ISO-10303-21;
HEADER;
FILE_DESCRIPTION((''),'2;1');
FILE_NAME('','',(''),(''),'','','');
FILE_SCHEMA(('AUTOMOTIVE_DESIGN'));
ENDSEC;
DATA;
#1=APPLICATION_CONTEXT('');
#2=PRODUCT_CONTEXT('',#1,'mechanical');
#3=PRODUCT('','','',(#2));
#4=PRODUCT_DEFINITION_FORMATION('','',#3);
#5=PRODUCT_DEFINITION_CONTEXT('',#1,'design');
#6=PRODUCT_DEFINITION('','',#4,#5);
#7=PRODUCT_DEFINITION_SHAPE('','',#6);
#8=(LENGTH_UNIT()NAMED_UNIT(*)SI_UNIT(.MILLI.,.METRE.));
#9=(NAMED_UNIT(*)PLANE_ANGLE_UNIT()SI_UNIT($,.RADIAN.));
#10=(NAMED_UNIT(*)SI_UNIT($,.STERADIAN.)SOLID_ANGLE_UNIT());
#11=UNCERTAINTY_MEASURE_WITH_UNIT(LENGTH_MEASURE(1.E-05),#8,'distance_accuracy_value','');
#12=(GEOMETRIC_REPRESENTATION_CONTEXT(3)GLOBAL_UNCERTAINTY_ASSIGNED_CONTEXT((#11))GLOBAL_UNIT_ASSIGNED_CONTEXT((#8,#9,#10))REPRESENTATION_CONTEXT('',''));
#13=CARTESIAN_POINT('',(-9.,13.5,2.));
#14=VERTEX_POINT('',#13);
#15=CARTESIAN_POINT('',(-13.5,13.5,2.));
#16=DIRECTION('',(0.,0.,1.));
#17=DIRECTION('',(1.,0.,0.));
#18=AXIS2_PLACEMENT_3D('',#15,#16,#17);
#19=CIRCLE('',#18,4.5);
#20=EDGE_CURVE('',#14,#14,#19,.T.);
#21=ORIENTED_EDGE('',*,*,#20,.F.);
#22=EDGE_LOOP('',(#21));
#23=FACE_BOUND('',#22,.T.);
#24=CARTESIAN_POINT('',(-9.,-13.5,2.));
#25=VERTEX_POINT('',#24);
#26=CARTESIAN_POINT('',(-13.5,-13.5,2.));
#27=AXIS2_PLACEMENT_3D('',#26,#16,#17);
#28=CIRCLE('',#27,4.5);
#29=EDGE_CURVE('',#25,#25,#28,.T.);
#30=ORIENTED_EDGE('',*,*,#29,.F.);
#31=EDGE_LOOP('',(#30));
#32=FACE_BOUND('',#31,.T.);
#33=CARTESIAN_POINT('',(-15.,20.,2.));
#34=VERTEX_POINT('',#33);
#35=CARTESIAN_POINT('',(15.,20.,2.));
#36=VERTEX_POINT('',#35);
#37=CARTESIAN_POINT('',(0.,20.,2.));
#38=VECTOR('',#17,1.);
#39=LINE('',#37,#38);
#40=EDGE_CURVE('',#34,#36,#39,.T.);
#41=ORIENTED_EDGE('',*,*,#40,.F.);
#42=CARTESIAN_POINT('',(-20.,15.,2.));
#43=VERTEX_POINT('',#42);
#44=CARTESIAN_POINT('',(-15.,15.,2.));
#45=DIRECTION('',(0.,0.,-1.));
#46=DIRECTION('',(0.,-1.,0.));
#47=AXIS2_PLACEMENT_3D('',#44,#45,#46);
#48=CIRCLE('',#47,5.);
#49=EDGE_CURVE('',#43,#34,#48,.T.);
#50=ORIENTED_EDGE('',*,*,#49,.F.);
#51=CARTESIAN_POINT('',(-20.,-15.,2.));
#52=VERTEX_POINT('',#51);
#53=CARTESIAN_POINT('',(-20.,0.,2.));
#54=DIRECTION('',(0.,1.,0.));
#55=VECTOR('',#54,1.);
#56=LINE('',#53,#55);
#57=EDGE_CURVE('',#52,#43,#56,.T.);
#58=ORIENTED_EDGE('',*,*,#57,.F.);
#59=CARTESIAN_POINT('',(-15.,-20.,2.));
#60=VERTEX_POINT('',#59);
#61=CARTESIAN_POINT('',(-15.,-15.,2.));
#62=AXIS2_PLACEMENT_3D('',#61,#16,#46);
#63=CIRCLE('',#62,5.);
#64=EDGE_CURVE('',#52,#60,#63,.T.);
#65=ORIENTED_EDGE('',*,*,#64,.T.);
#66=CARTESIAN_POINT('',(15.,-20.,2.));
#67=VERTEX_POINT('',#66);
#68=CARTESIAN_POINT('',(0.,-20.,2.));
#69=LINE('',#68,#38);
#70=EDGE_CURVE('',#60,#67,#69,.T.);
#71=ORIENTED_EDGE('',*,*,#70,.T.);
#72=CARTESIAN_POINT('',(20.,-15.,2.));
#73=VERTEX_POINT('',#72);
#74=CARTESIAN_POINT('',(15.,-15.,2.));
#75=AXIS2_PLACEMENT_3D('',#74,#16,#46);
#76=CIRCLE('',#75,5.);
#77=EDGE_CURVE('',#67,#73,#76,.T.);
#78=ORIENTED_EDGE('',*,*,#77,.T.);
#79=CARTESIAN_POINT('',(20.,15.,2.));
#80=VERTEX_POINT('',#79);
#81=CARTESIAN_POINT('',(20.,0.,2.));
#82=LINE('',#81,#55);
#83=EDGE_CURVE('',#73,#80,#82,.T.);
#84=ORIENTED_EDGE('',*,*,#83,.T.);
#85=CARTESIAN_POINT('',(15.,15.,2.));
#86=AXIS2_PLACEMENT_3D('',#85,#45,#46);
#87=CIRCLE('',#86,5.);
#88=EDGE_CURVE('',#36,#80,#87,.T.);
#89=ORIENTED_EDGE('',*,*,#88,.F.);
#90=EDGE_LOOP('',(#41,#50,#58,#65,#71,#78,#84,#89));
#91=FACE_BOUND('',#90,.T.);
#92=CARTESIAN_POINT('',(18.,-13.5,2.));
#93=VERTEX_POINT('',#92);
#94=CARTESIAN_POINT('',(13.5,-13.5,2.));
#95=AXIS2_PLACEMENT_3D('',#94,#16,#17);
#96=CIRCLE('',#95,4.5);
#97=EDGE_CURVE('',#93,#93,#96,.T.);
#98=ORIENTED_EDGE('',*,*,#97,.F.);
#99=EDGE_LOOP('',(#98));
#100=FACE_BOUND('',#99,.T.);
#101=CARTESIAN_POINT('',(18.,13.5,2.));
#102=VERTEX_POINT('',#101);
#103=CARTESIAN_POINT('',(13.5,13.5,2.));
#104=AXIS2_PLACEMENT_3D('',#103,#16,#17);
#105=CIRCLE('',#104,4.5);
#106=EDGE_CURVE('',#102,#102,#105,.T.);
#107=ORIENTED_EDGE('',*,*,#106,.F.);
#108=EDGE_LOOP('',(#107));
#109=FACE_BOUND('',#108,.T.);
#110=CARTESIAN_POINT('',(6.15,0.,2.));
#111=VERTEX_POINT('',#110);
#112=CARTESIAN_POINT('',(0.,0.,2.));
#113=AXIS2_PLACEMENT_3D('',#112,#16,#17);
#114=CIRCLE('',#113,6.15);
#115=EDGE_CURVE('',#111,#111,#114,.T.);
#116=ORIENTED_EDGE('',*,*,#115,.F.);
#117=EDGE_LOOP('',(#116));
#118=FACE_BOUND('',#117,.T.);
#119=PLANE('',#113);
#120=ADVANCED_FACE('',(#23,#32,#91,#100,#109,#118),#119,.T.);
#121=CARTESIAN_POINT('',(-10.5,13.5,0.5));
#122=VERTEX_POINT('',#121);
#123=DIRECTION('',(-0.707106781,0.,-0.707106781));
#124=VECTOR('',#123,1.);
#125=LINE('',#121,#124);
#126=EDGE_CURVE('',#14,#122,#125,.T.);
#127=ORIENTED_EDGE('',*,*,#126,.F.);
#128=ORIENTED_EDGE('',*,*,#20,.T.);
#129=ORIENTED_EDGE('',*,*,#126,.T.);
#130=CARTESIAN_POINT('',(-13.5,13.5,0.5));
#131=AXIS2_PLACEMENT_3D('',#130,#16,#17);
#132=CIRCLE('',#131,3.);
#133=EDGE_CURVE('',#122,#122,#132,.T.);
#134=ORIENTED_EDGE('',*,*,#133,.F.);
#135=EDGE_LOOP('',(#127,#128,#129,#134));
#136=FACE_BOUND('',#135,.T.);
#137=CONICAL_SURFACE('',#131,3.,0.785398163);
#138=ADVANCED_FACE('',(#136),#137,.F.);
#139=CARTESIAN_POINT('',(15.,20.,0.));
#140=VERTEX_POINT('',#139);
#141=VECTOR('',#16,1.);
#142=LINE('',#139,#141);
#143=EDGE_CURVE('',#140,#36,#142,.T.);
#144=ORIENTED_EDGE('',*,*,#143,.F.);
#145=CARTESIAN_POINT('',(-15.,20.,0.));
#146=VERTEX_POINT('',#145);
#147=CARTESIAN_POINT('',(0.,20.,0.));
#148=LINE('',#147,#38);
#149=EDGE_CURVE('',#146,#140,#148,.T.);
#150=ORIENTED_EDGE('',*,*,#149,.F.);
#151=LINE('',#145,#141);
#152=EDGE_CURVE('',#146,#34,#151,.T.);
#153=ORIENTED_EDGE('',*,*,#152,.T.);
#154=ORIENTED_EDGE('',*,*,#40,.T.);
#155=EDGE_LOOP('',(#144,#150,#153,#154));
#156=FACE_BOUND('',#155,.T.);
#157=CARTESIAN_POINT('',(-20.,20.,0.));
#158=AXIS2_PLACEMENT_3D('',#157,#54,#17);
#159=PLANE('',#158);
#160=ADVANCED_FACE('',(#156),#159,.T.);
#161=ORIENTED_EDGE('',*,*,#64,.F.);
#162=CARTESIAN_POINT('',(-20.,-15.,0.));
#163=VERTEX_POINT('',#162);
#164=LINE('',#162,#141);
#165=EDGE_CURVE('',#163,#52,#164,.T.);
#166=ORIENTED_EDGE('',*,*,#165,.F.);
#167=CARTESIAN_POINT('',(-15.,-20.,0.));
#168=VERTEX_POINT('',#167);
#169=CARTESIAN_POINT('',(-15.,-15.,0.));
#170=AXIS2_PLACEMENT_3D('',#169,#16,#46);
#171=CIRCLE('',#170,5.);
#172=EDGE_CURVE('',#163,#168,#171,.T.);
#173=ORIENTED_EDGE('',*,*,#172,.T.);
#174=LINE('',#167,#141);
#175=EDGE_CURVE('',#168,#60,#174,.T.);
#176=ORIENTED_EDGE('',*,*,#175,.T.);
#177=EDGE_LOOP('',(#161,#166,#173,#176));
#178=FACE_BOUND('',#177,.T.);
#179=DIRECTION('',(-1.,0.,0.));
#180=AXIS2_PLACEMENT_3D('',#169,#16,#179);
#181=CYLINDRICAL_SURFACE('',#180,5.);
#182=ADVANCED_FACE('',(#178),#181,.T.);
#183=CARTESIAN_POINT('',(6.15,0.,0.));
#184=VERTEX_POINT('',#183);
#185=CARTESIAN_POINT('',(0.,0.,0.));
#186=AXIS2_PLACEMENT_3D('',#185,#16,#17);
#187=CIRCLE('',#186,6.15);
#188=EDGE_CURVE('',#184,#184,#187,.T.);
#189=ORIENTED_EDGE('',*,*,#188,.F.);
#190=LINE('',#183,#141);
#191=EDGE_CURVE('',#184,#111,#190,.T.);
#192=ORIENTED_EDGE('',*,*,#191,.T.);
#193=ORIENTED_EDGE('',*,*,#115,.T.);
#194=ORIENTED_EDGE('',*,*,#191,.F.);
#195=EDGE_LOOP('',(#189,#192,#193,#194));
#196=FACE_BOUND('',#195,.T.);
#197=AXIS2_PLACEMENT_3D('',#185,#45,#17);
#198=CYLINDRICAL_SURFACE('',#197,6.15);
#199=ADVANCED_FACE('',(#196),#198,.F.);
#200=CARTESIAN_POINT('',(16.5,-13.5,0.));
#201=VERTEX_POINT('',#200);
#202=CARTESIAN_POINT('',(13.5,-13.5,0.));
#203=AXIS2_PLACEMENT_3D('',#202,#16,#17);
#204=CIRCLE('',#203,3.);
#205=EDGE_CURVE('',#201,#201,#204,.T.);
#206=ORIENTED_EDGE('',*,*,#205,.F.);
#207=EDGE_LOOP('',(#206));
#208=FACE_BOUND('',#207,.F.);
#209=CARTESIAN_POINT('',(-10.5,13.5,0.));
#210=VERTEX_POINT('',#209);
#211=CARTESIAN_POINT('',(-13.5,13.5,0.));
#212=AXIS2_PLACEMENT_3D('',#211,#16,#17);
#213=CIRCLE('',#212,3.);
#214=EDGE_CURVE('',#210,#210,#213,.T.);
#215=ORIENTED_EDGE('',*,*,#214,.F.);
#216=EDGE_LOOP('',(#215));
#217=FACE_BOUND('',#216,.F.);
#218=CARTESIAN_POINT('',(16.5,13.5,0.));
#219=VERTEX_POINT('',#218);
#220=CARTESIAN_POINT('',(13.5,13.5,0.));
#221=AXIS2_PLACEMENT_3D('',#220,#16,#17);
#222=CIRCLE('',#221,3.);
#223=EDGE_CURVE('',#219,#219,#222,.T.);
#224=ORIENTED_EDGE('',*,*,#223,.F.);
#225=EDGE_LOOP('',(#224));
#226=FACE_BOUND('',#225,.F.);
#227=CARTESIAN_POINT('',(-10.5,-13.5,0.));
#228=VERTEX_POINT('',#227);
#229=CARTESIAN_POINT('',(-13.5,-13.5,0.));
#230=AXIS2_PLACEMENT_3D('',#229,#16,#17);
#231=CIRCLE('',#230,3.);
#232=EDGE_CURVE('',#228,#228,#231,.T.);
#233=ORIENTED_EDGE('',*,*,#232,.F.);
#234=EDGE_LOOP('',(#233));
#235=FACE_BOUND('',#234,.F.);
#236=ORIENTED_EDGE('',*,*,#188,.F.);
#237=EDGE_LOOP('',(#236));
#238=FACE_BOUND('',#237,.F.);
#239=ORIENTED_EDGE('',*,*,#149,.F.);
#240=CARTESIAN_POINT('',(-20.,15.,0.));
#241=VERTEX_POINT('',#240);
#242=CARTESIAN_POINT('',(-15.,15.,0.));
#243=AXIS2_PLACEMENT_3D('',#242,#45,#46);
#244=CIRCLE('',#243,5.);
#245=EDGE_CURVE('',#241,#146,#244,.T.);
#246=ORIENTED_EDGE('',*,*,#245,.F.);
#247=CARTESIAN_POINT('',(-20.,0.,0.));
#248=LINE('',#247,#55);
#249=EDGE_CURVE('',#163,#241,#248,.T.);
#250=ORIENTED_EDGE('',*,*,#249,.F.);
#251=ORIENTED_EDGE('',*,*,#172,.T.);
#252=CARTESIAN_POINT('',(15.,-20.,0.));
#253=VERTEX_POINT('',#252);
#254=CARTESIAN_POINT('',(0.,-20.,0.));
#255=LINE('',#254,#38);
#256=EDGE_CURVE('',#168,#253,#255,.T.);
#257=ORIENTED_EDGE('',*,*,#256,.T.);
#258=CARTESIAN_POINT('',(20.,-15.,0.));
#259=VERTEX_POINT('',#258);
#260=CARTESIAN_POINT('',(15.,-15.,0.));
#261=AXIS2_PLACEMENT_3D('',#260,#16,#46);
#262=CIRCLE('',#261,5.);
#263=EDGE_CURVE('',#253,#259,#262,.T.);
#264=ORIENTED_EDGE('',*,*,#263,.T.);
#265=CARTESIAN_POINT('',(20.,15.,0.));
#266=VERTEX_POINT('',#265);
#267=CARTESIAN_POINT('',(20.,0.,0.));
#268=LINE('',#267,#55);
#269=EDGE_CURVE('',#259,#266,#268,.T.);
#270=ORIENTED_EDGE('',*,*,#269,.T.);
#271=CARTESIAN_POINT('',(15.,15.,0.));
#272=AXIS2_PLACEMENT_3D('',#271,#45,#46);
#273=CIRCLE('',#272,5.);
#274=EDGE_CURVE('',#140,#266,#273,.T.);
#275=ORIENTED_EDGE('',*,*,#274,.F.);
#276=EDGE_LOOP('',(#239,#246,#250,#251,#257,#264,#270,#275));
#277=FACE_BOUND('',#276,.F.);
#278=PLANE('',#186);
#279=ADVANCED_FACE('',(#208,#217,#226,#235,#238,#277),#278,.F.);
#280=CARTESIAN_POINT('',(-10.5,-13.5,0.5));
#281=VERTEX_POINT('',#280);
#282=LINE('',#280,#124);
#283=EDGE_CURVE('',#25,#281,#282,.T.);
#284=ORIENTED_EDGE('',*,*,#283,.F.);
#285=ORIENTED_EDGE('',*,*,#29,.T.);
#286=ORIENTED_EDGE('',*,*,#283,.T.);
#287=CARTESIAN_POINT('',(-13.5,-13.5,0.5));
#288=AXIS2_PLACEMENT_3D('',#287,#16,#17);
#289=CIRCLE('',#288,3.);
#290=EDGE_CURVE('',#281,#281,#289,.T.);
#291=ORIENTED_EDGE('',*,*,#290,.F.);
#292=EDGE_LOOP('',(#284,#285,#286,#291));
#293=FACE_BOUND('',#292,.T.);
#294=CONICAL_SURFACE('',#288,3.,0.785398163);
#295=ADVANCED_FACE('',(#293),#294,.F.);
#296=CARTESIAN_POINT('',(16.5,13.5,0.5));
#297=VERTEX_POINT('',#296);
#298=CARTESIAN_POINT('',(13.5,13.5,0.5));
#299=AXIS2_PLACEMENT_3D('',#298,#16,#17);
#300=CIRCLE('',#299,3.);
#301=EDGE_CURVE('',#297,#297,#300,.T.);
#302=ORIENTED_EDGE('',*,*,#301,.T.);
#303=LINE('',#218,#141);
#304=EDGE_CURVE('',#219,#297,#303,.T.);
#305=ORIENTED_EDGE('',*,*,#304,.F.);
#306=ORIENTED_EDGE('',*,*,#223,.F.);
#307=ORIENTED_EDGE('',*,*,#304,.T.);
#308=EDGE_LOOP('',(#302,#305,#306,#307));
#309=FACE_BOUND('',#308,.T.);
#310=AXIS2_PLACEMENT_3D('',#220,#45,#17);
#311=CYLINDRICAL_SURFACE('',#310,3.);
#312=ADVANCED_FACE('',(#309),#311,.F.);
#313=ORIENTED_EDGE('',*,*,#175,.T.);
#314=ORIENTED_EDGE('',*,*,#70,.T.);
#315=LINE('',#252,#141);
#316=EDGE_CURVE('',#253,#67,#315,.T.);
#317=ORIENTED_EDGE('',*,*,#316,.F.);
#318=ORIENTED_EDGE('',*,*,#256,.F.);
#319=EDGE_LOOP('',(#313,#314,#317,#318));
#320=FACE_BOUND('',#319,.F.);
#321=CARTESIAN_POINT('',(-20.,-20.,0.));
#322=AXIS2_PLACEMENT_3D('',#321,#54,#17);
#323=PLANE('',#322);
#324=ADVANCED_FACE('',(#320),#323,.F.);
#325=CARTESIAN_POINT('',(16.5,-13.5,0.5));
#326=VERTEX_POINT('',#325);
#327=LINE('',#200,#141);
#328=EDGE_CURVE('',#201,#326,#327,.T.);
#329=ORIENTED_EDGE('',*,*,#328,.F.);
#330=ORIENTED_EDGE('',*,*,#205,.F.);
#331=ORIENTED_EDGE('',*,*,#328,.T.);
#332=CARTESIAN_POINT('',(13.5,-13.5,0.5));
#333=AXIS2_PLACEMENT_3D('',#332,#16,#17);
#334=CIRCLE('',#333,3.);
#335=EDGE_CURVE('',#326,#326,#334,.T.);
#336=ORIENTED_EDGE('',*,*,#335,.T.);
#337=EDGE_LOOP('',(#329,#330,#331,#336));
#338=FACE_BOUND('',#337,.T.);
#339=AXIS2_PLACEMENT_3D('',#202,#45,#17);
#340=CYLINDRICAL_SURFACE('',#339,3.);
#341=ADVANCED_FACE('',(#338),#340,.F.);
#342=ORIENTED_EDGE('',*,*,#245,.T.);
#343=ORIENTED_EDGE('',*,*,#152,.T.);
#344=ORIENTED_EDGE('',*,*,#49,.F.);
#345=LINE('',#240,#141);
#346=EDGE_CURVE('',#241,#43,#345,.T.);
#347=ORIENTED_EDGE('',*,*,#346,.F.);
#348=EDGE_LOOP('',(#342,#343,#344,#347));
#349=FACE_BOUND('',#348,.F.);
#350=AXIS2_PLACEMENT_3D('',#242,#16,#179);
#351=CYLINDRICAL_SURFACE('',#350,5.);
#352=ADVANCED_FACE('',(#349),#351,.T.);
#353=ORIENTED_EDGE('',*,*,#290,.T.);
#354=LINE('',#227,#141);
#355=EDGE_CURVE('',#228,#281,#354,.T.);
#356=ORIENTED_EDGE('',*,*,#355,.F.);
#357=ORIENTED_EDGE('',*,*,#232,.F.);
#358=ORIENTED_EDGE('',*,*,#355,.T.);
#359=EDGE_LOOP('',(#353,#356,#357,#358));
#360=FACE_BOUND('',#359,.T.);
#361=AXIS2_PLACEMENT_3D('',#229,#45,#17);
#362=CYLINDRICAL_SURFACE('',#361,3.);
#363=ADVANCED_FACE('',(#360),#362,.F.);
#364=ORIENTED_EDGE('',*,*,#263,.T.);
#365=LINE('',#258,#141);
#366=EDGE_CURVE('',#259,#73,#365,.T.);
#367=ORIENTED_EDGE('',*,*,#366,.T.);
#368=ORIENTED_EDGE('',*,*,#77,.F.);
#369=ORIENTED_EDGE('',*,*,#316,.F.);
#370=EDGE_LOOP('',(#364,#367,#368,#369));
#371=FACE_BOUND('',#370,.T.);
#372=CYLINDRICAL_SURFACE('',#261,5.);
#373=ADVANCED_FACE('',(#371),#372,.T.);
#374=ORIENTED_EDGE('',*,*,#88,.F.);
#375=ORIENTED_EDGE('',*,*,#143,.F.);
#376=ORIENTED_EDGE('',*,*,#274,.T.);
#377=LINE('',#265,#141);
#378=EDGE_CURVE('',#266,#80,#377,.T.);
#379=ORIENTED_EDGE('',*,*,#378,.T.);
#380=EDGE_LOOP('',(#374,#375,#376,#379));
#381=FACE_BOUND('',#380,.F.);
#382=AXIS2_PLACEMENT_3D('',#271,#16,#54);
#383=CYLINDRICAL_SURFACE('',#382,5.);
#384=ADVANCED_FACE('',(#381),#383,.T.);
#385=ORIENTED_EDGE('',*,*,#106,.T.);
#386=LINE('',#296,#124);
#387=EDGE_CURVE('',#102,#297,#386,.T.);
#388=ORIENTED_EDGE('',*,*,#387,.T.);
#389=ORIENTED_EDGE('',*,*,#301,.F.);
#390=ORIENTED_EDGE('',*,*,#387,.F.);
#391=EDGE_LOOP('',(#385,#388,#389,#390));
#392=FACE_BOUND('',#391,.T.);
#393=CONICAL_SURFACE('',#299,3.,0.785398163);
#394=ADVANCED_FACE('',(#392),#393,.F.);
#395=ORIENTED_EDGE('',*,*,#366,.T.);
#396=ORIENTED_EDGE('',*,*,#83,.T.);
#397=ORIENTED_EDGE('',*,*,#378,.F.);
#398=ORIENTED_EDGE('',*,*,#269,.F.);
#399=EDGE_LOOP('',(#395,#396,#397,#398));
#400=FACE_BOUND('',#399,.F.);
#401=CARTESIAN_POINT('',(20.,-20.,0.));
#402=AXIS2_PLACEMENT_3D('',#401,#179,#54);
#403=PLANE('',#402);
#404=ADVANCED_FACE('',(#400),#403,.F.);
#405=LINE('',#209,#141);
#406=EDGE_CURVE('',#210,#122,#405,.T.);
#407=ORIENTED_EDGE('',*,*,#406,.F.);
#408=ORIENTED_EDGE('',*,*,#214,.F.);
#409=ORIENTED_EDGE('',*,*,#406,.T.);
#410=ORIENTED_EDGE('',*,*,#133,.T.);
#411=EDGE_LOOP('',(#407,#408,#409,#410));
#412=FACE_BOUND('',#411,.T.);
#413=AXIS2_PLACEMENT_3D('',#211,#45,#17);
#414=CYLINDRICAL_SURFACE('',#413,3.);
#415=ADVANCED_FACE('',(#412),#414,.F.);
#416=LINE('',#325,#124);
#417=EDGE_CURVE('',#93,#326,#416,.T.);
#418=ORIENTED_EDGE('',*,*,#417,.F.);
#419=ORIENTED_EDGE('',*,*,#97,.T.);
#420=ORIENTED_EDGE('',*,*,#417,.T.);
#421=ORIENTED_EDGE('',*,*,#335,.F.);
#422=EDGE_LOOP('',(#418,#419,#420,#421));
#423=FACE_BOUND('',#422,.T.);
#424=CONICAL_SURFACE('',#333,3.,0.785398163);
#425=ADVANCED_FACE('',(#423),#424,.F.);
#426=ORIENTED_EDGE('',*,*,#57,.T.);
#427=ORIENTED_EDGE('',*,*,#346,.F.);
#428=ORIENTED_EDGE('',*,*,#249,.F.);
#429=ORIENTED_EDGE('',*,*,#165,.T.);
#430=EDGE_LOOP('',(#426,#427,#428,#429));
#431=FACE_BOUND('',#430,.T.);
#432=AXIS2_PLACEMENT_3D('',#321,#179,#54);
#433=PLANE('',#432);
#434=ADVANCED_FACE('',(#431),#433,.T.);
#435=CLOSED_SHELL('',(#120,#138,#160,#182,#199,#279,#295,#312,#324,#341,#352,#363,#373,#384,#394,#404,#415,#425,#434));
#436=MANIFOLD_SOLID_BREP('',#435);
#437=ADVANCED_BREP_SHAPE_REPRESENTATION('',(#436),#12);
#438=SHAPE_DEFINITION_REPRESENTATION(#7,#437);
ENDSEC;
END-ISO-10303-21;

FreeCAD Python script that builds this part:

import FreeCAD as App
import Part
import Sketcher

V = App.Vector
Q = App.Units.Quantity


def edges_at(feature, points):
    """Names of the edges that pass closest to the given points."""
    edges = feature.Shape.Edges
    near = lambda p: min(range(len(edges)), key=lambda i: edges[i].distToShape(Part.Vertex(*p))[0])
    return sorted({f"Edge{near(p) + 1}" for p in points})


def add_polygon(sketch, points):
    """Adds a closed chain of lines whose ends are joined by coincident constraints."""
    first, n = sketch.GeometryCount, len(points)
    for a, b in zip(points, points[1:] + points[:1]):
        sketch.addGeometry(Part.LineSegment(App.Vector(*a, 0), App.Vector(*b, 0)), False)
    for i in range(n):
        sketch.addConstraint(Sketcher.Constraint("Coincident", first + i, 2, first + (i + 1) % n, 1))

doc = App.newDocument("Part")
body = doc.addObject("PartDesign::Body", "Body")

# Sketch on XY plane
sketch1 = body.newObject("Sketcher::SketchObject", "Sketch")
sketch1.AttachmentSupport = (doc.getObject("XY_Plane"), [""])
sketch1.MapMode = "FlatFace"
add_polygon(sketch1, [(-20, 20), (-20, -20), (20, -20), (20, 20)])  # lines 0-3
sketch1.addGeometry(Part.Circle(V(-13.5, -13.5, 0), V(0, 0, 1), 3), False)  # 4
sketch1.addGeometry(Part.Circle(V(13.5, -13.5, 0), V(0, 0, 1), 3), False)  # 5
sketch1.addGeometry(Part.Circle(V(-13.5, 13.5, 0), V(0, 0, 1), 3), False)  # 6
sketch1.addGeometry(Part.Circle(V(0, 0, 0), V(0, 0, 1), 6.2), False)  # 7
sketch1.addGeometry(Part.Circle(V(13.5, 13.5, 0), V(0, 0, 1), 3), False)  # 8
sketch1.addConstraint(Sketcher.Constraint("Vertical", 0))
sketch1.addConstraint(Sketcher.Constraint("Horizontal", 1))
sketch1.addConstraint(Sketcher.Constraint("Vertical", 2))
sketch1.addConstraint(Sketcher.Constraint("Horizontal", 3))
sketch1.addConstraint(Sketcher.Constraint("Coincident", 7, 3, -1, 1))
sketch1.addConstraint(Sketcher.Constraint("Equal", 4, 5))
sketch1.addConstraint(Sketcher.Constraint("Equal", 5, 6))
sketch1.addConstraint(Sketcher.Constraint("Equal", 6, 8))
sketch1.addConstraint(Sketcher.Constraint("Symmetric", 5, 3, 6, 3, -1, 1))
sketch1.addConstraint(Sketcher.Constraint("Symmetric", 4, 3, 8, 3, -1, 1))
sketch1.addConstraint(Sketcher.Constraint("Symmetric", 0, 2, 2, 2, -1, 1))
sketch1.addConstraint(Sketcher.Constraint("Symmetric", 4, 3, 5, 3, -2))
sketch1.addConstraint(Sketcher.Constraint("Equal", 3, 0))
sketch1.addConstraint(Sketcher.Constraint("Diameter", 4, Q("6 mm")))
sketch1.addConstraint(Sketcher.Constraint("Diameter", 7, Q("12.3 mm")))
sketch1.addConstraint(Sketcher.Constraint("DistanceX", 1, 1, 1, 2, Q("40 mm")))
sketch1.addConstraint(Sketcher.Constraint("DistanceX", 4, 3, 5, 3, Q("27 mm")))
sketch1.addConstraint(Sketcher.Constraint("DistanceY", 4, 3, 6, 3, Q("27 mm")))
pad1 = body.newObject("PartDesign::Pad", "Pad")
pad1.Profile = sketch1
pad1.Length = 2
doc.recompute()

fillet = body.newObject("PartDesign::Fillet", "Fillet")
fillet.Base = (pad1, edges_at(pad1, [
    (-20, -20, 1),
    (20, -20, 1),
    (20, 20, 1),
    (-20, 20, 1),
]))
fillet.Radius = 5
doc.recompute()

chamfer = body.newObject("PartDesign::Chamfer", "Chamfer")
chamfer.Base = (fillet, edges_at(fillet, [
    (-16.5, 13.5, 2),
    (-16.5, -13.5, 2),
    (10.5, 13.5, 2),
    (10.5, -13.5, 2),
]))
chamfer.Size = 1.5

doc.recompute()
